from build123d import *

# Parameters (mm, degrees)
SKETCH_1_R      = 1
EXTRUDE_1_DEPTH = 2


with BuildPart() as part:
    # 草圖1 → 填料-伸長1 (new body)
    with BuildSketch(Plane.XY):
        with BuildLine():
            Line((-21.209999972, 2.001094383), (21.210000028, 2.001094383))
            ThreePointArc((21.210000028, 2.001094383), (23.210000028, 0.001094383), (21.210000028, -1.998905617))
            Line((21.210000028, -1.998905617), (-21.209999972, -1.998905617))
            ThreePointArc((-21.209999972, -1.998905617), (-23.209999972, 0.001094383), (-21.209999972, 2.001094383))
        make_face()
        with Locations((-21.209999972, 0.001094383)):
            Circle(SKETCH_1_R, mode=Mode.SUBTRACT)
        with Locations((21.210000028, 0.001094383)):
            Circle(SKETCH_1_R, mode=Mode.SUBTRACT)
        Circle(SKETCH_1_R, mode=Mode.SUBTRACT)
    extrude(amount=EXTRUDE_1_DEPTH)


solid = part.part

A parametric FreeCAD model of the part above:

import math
import FreeCAD as App
import Part
import Sketcher
from FreeCAD import Vector
Q = App.Units.Quantity

doc = App.newDocument("Part")
body = doc.addObject("PartDesign::Body", "Body")

# Sketch on XY plane
sketch1 = body.newObject("Sketcher::SketchObject", "Sketch")
sketch1.AttachmentSupport = (doc.getObject("XY_Plane"), [""])
sketch1.MapMode = "FlatFace"
sketch1.addGeometry(Part.LineSegment(Vector(21.2, 2, 0), Vector(-21.2, 2, 0)), False)
sketch1.addGeometry(Part.ArcOfCircle(Part.Circle(Vector(-21.2, 0, 0), Vector(0, 0, 1), 2), math.radians(90), math.radians(270)), False)
sketch1.addGeometry(Part.LineSegment(Vector(-21.2, -2, 0), Vector(21.2, -2, 0)), False)
sketch1.addGeometry(Part.ArcOfCircle(Part.Circle(Vector(21.2, 0, 0), Vector(0, 0, 1), 2), math.radians(-90), math.radians(90)), False)
sketch1.addGeometry(Part.Circle(Vector(0, 0, 0), Vector(0, 0, 1), 1), False)
sketch1.addGeometry(Part.Circle(Vector(21.2, 0, 0), Vector(0, 0, 1), 1), False)
sketch1.addGeometry(Part.Circle(Vector(-21.2, 0, 0), Vector(0, 0, 1), 1), False)
sketch1.addConstraint(Sketcher.Constraint("Tangent", 0, 2, 1, 1))
sketch1.addConstraint(Sketcher.Constraint("Tangent", 1, 2, 2, 1))
sketch1.addConstraint(Sketcher.Constraint("Tangent", 2, 2, 3, 1))
sketch1.addConstraint(Sketcher.Constraint("Tangent", 3, 2, 0, 1))
sketch1.addConstraint(Sketcher.Constraint("Horizontal", 0))
sketch1.addConstraint(Sketcher.Constraint("Horizontal", 2))
sketch1.addConstraint(Sketcher.Constraint("Coincident", 4, 3, -1, 1))
sketch1.addConstraint(Sketcher.Constraint("Coincident", 5, 3, 3, 3))
sketch1.addConstraint(Sketcher.Constraint("Coincident", 6, 3, 1, 3))
sketch1.addConstraint(Sketcher.Constraint("Equal", 4, 5))
sketch1.addConstraint(Sketcher.Constraint("Equal", 5, 6))
sketch1.addConstraint(Sketcher.Constraint("Diameter", 4, Q("2 mm")))
sketch1.addConstraint(Sketcher.Constraint("Radius", 1, Q("2 mm")))
sketch1.addConstraint(Sketcher.Constraint("DistanceX", 0, 2, 0, 1, Q("42.42 mm")))
sketch1.addConstraint(Sketcher.Constraint("DistanceX", 1, 3, -1, 1, Q("21.21 mm")))
sketch1.addConstraint(Sketcher.Constraint("DistanceY", -1, 1, 1, 3, Q("0.001094 mm")))
pad1 = body.newObject("PartDesign::Pad", "Pad")
pad1.Profile = sketch1
pad1.Length = 2

doc.recompute()
